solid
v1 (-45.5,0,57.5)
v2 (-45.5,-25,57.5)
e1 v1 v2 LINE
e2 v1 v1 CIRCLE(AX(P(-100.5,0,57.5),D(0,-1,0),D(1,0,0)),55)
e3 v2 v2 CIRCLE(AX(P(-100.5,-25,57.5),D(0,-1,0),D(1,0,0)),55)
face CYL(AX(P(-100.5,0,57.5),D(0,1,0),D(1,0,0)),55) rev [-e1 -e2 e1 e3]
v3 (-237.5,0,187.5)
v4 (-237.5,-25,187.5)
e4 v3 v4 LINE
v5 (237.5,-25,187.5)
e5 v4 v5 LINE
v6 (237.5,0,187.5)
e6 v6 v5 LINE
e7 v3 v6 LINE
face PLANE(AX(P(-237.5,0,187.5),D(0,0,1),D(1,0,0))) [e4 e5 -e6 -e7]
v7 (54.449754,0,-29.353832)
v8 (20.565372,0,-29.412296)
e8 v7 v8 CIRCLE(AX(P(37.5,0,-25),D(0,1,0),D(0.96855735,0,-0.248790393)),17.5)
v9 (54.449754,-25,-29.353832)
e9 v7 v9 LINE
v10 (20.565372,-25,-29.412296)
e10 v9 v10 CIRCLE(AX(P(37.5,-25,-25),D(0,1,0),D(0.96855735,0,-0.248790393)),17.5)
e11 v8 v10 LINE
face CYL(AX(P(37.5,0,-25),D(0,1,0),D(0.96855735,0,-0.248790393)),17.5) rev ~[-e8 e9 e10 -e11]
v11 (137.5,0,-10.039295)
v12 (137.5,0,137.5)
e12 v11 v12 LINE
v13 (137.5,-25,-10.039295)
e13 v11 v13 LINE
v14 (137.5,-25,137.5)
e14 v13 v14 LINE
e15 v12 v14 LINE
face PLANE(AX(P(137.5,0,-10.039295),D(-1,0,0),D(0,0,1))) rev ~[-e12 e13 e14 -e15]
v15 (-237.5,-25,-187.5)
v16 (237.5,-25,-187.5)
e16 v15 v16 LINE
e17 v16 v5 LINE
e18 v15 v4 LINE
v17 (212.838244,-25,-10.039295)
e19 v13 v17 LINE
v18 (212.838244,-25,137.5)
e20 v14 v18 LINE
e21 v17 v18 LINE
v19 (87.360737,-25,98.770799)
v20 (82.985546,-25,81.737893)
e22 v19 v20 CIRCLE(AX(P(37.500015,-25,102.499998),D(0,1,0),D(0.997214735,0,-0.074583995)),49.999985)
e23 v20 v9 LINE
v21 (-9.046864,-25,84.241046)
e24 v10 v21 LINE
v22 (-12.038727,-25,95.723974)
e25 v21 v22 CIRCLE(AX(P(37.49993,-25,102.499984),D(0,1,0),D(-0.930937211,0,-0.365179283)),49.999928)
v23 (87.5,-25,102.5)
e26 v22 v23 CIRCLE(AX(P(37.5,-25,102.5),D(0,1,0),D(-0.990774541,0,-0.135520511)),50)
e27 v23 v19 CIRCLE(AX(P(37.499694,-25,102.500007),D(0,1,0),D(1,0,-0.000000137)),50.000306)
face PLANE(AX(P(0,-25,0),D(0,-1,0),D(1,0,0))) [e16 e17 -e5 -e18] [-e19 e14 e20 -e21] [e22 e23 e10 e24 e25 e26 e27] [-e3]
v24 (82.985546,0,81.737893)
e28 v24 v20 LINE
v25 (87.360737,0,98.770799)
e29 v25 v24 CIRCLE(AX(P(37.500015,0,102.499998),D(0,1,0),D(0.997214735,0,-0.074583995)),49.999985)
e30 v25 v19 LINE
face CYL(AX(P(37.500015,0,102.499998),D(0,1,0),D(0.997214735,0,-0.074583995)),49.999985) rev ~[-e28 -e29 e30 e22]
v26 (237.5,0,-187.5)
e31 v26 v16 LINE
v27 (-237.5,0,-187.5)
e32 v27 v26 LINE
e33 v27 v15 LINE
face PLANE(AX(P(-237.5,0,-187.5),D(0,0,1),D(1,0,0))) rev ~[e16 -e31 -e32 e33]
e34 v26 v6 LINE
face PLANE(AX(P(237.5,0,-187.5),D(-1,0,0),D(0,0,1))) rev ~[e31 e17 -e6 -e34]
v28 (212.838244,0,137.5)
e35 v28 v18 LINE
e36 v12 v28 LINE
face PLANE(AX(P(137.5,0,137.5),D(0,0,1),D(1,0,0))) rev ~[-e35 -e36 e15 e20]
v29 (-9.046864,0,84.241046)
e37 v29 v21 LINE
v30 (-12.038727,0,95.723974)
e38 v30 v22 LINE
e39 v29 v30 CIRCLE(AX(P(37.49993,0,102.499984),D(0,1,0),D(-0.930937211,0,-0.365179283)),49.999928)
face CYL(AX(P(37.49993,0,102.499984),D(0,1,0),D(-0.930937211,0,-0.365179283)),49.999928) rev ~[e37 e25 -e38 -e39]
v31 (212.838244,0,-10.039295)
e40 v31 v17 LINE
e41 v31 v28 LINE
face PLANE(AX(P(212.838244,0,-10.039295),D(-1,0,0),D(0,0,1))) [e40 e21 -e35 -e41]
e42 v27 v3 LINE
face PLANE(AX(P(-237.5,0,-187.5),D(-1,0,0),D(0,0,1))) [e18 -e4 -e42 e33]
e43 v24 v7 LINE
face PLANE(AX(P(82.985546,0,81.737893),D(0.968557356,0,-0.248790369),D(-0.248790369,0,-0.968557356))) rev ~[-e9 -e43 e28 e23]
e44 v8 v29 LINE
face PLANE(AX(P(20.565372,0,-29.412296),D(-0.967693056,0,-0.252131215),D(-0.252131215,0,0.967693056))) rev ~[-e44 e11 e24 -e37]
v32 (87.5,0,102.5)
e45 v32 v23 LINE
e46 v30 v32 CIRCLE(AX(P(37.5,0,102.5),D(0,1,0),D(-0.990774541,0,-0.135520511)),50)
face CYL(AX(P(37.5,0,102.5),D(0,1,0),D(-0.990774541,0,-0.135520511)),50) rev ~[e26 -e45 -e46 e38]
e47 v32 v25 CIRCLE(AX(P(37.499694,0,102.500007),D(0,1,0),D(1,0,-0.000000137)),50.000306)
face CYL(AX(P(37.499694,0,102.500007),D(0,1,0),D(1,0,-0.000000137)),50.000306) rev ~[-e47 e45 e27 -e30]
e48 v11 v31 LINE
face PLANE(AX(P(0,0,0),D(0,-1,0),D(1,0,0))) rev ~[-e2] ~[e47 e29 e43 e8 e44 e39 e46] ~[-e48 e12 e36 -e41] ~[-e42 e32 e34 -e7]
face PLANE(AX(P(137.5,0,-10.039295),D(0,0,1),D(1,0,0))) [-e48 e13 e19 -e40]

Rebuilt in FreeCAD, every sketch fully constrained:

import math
import FreeCAD as App
import Part
import Sketcher
from FreeCAD import Vector

doc = App.newDocument("Part")
body = doc.addObject("PartDesign::Body", "Body")

# Sketch on XZ plane
sketch1 = body.newObject("Sketcher::SketchObject", "Sketch")
sketch1.AttachmentSupport = (doc.getObject("XZ_Plane"), [""])
sketch1.MapMode = "FlatFace"
sketch1.addGeometry([
    Part.LineSegment(Vector(-237.5, 187.5, 0), Vector(-237.5, -187.5, 0)),  # 0
    Part.LineSegment(Vector(-237.5, -187.5, 0), Vector(237.5, -187.5, 0)),  # 1
    Part.LineSegment(Vector(237.5, -187.5, 0), Vector(237.5, 187.5, 0)),  # 2
    Part.LineSegment(Vector(237.5, 187.5, 0), Vector(-237.5, 187.5, 0)),  # 3
    Part.ArcOfCircle(Part.Circle(Vector(37.49993, 102.499984, 0), Vector(0, 0, 1), 49.999928), math.radians(-172.211287), math.radians(-158.581383)),  # 4
    Part.ArcOfCircle(Part.Circle(Vector(37.5, 102.5, 0), Vector(0, 0, 1), 50), math.radians(0.000001), math.radians(187.78872)),  # 5
    Part.ArcOfCircle(Part.Circle(Vector(37.499694, 102.500007, 0), Vector(0, 0, 1), 50.000306), math.radians(-4.277303), math.radians(-0.000008)),  # 6
    Part.ArcOfCircle(Part.Circle(Vector(37.500015, 102.499998, 0), Vector(0, 0, 1), 49.999985), math.radians(-24.534571), math.radians(-4.27732)),  # 7
    Part.LineSegment(Vector(82.985546, 81.737893, 0), Vector(54.449754, -29.353832, 0)),  # 8
    Part.ArcOfCircle(Part.Circle(Vector(37.5, -25, 0), Vector(0, 0, 1), 17.5), math.radians(-165.396339), math.radians(-14.405945)),  # 9
    Part.LineSegment(Vector(20.565372, -29.412296, 0), Vector(-9.046864, 84.241046, 0)),  # 10
    Part.Circle(Vector(-100.5, 57.5, 0), Vector(0, 0, 1), 55),  # 11
    Part.LineSegment(Vector(212.838244, -10.039295, 0), Vector(137.5, -10.039295, 0)),  # 12
    Part.LineSegment(Vector(137.5, -10.039295, 0), Vector(137.5, 137.5, 0)),  # 13
    Part.LineSegment(Vector(137.5, 137.5, 0), Vector(212.838244, 137.5, 0)),  # 14
    Part.LineSegment(Vector(212.838244, 137.5, 0), Vector(212.838244, -10.039295, 0)),  # 15
], False)
sketch1.addConstraint([
    Sketcher.Constraint("Coincident", 0, 2, 1, 1),
    Sketcher.Constraint("Coincident", 1, 2, 2, 1),
    Sketcher.Constraint("Coincident", 2, 2, 3, 1),
    Sketcher.Constraint("Coincident", 3, 2, 0, 1),
    Sketcher.Constraint("Coincident", 4, 1, 5, 2),
    Sketcher.Constraint("Coincident", 5, 1, 6, 2),
    Sketcher.Constraint("Coincident", 6, 1, 7, 2),
    Sketcher.Constraint("Coincident", 7, 1, 8, 1),
    Sketcher.Constraint("Coincident", 8, 2, 9, 2),
    Sketcher.Constraint("Coincident", 9, 1, 10, 1),
    Sketcher.Constraint("Coincident", 10, 2, 4, 2),
    Sketcher.Constraint("Coincident", 12, 2, 13, 1),
    Sketcher.Constraint("Coincident", 13, 2, 14, 1),
    Sketcher.Constraint("Coincident", 14, 2, 15, 1),
    Sketcher.Constraint("Coincident", 15, 2, 12, 1),
    Sketcher.Constraint("Vertical", 0),
    Sketcher.Constraint("Horizontal", 1),
    Sketcher.Constraint("Vertical", 2),
    Sketcher.Constraint("Horizontal", 3),
    Sketcher.Constraint("Horizontal", 12),
    Sketcher.Constraint("Vertical", 13),
    Sketcher.Constraint("Horizontal", 14),
    Sketcher.Constraint("Vertical", 15),
    Sketcher.Constraint("Diameter", 11, 110.0),
    Sketcher.Constraint("Radius", 5, 50.0),
    Sketcher.Constraint("Radius", 9, 17.5),
    Sketcher.Constraint("DistanceX", 1, 1, 1, 2, 475.0),
    Sketcher.Constraint("DistanceY", 0, 2, 0, 1, 375.0),
    Sketcher.Constraint("DistanceY", 9, 3, -1, 1, 25.0),
    Sketcher.Constraint("DistanceX", 11, 3, 5, 3, 138.0),
    Sketcher.Constraint("DistanceY", 11, 3, 5, 3, 45.0),
    Sketcher.Constraint("DistanceX", 11, 3, 9, 3, 138.0),
    Sketcher.Constraint("DistanceX", 0, 2, 11, 3, 137.0),
    Sketcher.Constraint("DistanceY", 0, 2, 11, 3, 245.0),
    Sketcher.Constraint("DistanceX", 9, 3, 12, 2, 100.0),
    Sketcher.Constraint("DistanceY", 5, 1, 13, 2, 35.0),
    Sketcher.Constraint("DistanceY", 5, 3, 13, 2, 35.000001),
    Sketcher.Constraint("DistanceX", -1, 1, 5, 3, 37.5),
    Sketcher.Constraint("DistanceY", -1, 1, 5, 3, 102.5),
    Sketcher.Constraint("Radius", 4, 49.999928),
    Sketcher.Constraint("Radius", 6, 50.000306),
    Sketcher.Constraint("Radius", 7, 49.999985),
    Sketcher.Constraint("DistanceY", 9, 1, 12, 2, 19.373002),
    Sketcher.Constraint("DistanceY", -1, 1, 6, 1, 98.770799),
    Sketcher.Constraint("DistanceY", 6, 1, 7, 3, 3.729199),
    Sketcher.Constraint("DistanceX", 4, 1, 9, 1, 32.604099),
    Sketcher.Constraint("DistanceX", 7, 1, 14, 2, 129.852698),
    Sketcher.Constraint("Distance", 10, 117.447719),
    Sketcher.Constraint("DistanceX", 12, 2, 12, 1, 75.338244),
    Sketcher.Constraint("DistanceY", 13, 1, 13, 2, 147.539295),
    Sketcher.Constraint("DistanceX", -1, 1, 4, 3, 37.49993),
    Sketcher.Constraint("DistanceX", 6, 3, 7, 3, 0.000322),
    Sketcher.Constraint("DistanceY", 8, 2, 9, 3, 4.353832),
])
pad1 = body.newObject("PartDesign::Pad", "Pad")
pad1.Profile = sketch1
pad1.Length = 25

doc.recompute()
